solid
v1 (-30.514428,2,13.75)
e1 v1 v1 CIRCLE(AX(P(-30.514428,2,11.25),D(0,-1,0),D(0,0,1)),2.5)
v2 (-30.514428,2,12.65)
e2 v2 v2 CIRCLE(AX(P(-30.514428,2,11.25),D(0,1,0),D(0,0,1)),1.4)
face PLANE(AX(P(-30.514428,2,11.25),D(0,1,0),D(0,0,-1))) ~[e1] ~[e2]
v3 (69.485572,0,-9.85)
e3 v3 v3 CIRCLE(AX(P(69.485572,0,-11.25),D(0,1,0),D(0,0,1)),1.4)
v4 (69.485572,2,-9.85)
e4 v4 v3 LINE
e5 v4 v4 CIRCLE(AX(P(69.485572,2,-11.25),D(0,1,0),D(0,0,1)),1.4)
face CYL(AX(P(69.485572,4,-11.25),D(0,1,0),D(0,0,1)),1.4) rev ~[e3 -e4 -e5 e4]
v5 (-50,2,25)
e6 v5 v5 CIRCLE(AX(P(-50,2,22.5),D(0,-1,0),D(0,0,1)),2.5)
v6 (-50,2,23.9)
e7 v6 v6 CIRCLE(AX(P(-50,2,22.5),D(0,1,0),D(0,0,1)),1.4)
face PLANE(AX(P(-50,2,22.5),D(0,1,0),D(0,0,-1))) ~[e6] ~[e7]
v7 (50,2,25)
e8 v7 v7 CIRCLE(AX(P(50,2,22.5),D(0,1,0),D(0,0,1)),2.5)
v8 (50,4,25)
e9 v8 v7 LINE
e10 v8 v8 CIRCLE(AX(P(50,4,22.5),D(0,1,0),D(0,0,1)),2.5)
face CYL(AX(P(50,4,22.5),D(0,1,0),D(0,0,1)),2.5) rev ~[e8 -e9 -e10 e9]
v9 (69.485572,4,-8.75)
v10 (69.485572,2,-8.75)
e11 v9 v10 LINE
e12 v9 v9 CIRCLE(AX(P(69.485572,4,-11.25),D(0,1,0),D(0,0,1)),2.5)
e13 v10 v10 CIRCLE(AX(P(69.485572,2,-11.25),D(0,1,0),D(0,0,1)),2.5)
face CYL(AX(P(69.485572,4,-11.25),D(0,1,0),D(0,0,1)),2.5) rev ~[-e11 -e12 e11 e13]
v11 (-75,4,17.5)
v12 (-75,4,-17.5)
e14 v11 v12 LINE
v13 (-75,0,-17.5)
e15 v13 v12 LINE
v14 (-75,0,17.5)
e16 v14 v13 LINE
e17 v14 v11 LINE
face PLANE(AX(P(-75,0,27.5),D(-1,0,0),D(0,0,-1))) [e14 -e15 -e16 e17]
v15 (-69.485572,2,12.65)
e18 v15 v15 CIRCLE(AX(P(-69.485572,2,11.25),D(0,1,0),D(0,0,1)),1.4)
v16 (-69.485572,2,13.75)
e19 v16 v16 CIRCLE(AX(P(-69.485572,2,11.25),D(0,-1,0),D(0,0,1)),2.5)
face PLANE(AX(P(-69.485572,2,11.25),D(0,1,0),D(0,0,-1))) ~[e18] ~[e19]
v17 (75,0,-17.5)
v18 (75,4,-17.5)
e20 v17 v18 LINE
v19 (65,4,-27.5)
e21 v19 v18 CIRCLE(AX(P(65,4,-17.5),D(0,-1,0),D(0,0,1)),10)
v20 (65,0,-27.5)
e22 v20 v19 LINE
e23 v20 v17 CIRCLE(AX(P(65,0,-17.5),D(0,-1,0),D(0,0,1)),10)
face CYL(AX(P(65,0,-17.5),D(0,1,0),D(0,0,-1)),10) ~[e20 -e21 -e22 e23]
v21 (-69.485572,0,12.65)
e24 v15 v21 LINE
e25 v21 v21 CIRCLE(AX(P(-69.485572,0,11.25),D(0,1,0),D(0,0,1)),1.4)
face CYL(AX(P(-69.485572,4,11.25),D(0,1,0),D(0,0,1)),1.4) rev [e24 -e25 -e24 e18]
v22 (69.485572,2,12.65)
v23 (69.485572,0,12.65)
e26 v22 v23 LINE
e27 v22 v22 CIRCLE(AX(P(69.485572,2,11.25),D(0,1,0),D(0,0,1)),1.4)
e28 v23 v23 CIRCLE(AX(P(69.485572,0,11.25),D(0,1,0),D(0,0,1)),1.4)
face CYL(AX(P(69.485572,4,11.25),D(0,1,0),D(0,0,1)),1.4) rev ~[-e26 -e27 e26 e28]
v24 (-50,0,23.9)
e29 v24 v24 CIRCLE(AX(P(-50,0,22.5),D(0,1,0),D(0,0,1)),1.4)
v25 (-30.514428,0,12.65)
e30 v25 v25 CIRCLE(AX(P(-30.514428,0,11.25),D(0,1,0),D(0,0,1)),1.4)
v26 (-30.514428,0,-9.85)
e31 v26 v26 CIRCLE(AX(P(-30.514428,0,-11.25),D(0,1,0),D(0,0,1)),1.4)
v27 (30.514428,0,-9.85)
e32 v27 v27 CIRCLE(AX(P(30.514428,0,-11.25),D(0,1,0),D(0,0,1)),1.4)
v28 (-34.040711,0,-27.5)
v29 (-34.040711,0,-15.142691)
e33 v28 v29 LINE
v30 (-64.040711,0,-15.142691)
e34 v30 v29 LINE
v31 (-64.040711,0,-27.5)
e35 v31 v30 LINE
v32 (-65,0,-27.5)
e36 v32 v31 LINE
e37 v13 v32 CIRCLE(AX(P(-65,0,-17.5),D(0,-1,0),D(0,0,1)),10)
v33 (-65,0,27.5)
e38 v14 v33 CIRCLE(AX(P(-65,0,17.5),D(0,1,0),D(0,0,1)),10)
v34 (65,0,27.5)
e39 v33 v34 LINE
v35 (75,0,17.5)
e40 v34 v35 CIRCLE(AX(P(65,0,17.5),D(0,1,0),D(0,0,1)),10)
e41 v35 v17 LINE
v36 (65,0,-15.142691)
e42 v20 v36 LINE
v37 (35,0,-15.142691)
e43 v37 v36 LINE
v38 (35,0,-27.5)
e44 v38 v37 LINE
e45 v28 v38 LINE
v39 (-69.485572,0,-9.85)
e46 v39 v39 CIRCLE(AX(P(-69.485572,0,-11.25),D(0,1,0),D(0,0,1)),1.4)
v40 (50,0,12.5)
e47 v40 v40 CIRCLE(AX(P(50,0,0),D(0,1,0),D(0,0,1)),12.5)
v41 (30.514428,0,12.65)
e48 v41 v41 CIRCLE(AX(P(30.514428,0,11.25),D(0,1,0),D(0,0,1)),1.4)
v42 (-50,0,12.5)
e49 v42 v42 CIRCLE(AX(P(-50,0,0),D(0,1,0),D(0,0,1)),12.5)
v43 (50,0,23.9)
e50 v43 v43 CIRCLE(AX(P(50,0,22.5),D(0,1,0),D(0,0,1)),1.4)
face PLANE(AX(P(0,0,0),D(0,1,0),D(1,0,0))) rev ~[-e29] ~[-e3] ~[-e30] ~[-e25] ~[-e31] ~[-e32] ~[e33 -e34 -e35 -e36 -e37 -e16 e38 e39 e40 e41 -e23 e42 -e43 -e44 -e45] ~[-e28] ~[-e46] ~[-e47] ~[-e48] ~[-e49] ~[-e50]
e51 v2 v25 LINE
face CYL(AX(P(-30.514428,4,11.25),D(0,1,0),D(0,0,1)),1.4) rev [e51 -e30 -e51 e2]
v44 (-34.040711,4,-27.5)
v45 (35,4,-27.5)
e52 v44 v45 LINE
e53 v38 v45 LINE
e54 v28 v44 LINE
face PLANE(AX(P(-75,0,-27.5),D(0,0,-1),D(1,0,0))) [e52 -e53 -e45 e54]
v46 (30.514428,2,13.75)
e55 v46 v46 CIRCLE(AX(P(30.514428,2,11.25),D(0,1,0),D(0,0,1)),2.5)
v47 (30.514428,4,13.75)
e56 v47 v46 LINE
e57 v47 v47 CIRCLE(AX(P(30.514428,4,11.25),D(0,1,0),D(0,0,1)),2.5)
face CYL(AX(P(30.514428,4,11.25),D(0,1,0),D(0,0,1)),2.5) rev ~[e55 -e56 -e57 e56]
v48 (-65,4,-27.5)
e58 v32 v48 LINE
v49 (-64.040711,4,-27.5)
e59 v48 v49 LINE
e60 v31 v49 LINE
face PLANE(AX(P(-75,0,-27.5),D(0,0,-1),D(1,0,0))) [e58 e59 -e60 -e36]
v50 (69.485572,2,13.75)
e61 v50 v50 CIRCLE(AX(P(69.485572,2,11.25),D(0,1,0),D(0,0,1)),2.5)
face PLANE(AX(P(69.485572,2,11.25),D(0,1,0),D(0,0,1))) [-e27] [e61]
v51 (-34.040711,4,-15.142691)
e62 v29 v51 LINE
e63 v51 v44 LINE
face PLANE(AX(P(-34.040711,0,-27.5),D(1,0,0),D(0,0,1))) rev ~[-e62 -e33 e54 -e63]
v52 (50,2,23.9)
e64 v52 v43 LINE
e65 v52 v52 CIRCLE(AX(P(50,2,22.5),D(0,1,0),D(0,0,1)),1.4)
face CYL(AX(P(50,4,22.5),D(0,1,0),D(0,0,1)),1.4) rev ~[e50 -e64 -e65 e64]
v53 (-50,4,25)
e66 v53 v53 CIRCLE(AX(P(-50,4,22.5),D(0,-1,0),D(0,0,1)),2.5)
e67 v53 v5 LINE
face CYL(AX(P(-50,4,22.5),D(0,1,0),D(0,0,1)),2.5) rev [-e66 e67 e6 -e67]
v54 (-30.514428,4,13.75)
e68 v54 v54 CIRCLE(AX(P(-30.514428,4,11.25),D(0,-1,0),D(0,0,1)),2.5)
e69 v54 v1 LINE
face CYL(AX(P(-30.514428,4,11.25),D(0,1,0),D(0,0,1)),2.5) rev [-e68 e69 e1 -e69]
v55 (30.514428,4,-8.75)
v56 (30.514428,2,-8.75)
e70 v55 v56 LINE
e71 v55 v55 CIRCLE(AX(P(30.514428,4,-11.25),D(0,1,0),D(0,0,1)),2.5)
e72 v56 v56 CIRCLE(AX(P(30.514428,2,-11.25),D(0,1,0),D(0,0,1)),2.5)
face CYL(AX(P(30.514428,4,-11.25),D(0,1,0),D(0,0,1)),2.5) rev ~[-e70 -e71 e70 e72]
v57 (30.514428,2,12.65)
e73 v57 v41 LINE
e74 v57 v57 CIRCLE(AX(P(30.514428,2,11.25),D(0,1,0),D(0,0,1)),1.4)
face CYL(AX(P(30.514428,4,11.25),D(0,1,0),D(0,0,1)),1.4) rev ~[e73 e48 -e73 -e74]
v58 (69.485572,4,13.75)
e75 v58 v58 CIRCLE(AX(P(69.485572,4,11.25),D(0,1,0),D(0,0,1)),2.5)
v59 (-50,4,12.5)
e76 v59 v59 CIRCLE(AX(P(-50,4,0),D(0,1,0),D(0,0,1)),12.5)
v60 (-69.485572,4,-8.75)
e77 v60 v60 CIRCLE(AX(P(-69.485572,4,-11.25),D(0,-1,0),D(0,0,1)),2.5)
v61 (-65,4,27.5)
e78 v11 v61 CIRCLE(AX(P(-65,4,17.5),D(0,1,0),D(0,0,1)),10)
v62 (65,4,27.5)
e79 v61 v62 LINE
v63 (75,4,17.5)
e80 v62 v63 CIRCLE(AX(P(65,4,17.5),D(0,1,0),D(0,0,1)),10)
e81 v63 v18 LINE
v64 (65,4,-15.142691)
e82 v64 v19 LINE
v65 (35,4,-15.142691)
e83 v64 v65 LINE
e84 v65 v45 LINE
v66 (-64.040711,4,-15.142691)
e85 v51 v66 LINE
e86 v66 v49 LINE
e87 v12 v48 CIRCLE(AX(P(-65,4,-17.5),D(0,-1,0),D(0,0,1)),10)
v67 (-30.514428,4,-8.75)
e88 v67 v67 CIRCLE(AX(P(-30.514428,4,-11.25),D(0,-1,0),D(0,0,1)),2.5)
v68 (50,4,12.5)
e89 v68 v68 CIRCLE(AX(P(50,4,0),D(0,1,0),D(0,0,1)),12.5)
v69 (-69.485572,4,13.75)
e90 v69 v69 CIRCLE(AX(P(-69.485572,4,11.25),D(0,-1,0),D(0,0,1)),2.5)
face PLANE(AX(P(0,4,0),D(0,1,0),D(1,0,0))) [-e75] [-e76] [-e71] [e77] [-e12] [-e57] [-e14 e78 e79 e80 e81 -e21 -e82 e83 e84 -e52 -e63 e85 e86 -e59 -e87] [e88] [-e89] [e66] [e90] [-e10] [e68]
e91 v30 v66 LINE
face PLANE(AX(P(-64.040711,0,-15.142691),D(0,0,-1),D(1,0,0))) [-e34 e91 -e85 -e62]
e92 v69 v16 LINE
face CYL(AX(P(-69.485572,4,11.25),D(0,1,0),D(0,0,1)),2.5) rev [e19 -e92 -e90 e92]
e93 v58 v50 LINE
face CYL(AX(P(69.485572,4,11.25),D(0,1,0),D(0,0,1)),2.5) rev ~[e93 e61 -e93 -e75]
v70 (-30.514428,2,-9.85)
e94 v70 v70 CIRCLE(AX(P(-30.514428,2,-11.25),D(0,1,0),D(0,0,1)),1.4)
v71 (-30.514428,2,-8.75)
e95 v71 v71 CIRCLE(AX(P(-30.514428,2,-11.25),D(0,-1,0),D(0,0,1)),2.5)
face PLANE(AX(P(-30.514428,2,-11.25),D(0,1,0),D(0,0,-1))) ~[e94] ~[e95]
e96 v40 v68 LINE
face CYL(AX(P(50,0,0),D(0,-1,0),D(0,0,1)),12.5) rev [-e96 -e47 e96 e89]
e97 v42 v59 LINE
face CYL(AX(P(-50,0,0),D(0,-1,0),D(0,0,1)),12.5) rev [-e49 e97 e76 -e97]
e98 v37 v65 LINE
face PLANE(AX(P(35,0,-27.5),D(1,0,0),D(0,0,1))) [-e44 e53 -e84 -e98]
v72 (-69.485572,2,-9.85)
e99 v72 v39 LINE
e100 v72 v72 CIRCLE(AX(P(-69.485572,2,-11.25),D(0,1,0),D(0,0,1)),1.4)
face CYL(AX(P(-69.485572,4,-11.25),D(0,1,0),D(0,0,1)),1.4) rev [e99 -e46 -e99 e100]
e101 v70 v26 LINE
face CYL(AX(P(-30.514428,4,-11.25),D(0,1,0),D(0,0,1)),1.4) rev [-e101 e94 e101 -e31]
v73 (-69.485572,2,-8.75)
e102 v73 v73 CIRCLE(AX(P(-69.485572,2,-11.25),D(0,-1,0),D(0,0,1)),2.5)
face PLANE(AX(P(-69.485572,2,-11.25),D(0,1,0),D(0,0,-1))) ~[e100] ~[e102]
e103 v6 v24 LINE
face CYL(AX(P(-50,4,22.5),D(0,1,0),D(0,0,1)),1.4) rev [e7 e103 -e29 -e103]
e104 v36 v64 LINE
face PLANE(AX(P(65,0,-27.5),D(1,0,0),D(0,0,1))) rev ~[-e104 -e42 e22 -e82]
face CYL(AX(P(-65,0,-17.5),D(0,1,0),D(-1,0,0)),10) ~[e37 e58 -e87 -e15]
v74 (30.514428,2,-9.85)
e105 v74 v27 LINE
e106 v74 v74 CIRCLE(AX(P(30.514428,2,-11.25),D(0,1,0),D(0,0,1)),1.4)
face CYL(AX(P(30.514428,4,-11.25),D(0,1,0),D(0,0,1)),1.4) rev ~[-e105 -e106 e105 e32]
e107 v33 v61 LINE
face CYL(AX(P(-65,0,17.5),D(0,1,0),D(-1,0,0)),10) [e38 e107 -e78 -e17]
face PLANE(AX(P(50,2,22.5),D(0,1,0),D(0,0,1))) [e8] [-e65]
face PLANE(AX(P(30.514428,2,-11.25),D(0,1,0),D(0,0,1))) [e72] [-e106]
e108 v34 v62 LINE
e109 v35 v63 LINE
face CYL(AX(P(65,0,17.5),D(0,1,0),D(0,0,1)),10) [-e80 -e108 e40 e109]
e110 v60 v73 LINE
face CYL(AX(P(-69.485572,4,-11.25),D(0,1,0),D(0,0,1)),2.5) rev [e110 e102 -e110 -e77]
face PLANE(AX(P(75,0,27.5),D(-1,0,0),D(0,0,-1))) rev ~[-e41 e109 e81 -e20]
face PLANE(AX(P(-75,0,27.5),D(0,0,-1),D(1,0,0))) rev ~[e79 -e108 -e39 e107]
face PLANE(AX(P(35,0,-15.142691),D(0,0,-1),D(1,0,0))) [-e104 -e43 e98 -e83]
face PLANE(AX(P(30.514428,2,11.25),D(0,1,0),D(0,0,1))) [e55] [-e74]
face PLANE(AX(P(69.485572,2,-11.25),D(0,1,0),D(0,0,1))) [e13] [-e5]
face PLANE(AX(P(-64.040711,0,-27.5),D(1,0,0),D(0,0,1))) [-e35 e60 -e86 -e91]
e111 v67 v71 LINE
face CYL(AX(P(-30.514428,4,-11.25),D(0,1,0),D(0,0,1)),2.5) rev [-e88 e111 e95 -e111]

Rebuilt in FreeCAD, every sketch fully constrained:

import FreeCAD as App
import Part
import Sketcher

V = App.Vector


def edges_at(feature, points):
    """Names of the edges that pass closest to the given points."""
    edges = feature.Shape.Edges
    near = lambda p: min(range(len(edges)), key=lambda i: edges[i].distToShape(Part.Vertex(*p))[0])
    return sorted({f"Edge{near(p) + 1}" for p in points})

doc = App.newDocument("Part")
body = doc.addObject("PartDesign::Body", "Body")

sketch1 = body.newObject("Sketcher::SketchObject", "Sketch")
sketch1.AttachmentSupport = (doc.getObject("XZ_Plane"), [""])
sketch1.MapMode = "FlatFace"
sketch1.addGeometry([
    Part.LineSegment(V(-75, -28, 0), V(-75, 28, 0)),
    Part.LineSegment(V(-75, 28, 0), V(75, 28, 0)),
    Part.LineSegment(V(75, 28, 0), V(75, -28, 0)),
    Part.LineSegment(V(75, -28, 0), V(-75, -28, 0)),
    Part.Circle(V(-50, 0, 0), V(0, 0, 1), 12),
    Part.Circle(V(50, 0, 0), V(0, 0, 1), 12),
], False)
sketch1.addConstraint([
    Sketcher.Constraint("Coincident", 0, 2, 1, 1),
    Sketcher.Constraint("Coincident", 1, 2, 2, 1),
    Sketcher.Constraint("Coincident", 2, 2, 3, 1),
    Sketcher.Constraint("Coincident", 3, 2, 0, 1),
    Sketcher.Constraint("Vertical", 0),
    Sketcher.Constraint("Horizontal", 1),
    Sketcher.Constraint("Vertical", 2),
    Sketcher.Constraint("Horizontal", 3),
    Sketcher.Constraint("Equal", 4, 5),
    Sketcher.Constraint("Symmetric", 4, 3, 5, 3, -1, 1),
    Sketcher.Constraint("Symmetric", 0, 2, 2, 2, -1, 1),
    Sketcher.Constraint("PointOnObject", 4, 3, -1),
    Sketcher.Constraint("Diameter", 4, 25.0),
    Sketcher.Constraint("DistanceX", 1, 1, 1, 2, 150.0),
    Sketcher.Constraint("DistanceY", 0, 1, 0, 2, 55.0),
    Sketcher.Constraint("DistanceX", 4, 3, -1, 1, 50.0),
])
pad1 = body.newObject("PartDesign::Pad", "Pad")
pad1.Profile = sketch1
pad1.Length = 4
pad1.Reversed = True

sketch2 = body.newObject("Sketcher::SketchObject", "Sketch001")
sketch2.AttachmentSupport = (doc.getObject("XZ_Plane"), [""])
sketch2.MapMode = "FlatFace"
sketch2.AttachmentOffset = App.Placement(V(0, 0, -4), App.Rotation())
sketch2.addGeometry([
    Part.Circle(V(30.5, -11.2, 0), V(0, 0, 1), 1.4),
    Part.Circle(V(69.5, -11.2, 0), V(0, 0, 1), 1.4),
    Part.Circle(V(69.5, 11.2, 0), V(0, 0, 1), 1.4),
    Part.Circle(V(30.5, 11.2, 0), V(0, 0, 1), 1.4),
    Part.Circle(V(50, 22.5, 0), V(0, 0, 1), 1.4),
], False)
sketch2.addConstraint([
    Sketcher.Constraint("Equal", 0, 1),
    Sketcher.Constraint("Equal", 1, 2),
    Sketcher.Constraint("Equal", 2, 3),
    Sketcher.Constraint("Equal", 3, 4),
    Sketcher.Constraint("Symmetric", 1, 3, 2, 3, -1),
    Sketcher.Constraint("Symmetric", 0, 3, 3, 3, -1),
    Sketcher.Constraint("Horizontal", 0, 3, 1, 3),
    Sketcher.Constraint("Diameter", 0, 2.8),
    Sketcher.Constraint("DistanceX", -1, 1, 4, 3, 50.0),
    Sketcher.Constraint("DistanceY", -1, 1, 4, 3, 22.5),
    Sketcher.Constraint("DistanceY", 1, 3, 2, 3, 22.5),
    Sketcher.Constraint("DistanceX", -1, 1, 0, 3, 30.514428),
    Sketcher.Constraint("DistanceX", -1, 1, 1, 3, 69.485572),
])
pocket1 = body.newObject("PartDesign::Pocket", "Pocket")
pocket1.Profile = sketch2
pocket1.Type = "ThroughAll"
pocket1.Reversed = True

sketch3 = body.newObject("Sketcher::SketchObject", "Sketch002")
sketch3.AttachmentSupport = (doc.getObject("XZ_Plane"), [""])
sketch3.MapMode = "FlatFace"
sketch3.AttachmentOffset = App.Placement(V(0, 0, -4), App.Rotation())
sketch3.addGeometry([
    Part.Circle(V(30.5, -11.2, 0), V(0, 0, 1), 2.5),
    Part.Circle(V(30.5, 11.2, 0), V(0, 0, 1), 2.5),
    Part.Circle(V(50, 22.5, 0), V(0, 0, 1), 2.5),
    Part.Circle(V(69.5, 11.2, 0), V(0, 0, 1), 2.5),
    Part.Circle(V(69.5, -11.2, 0), V(0, 0, 1), 2.5),
], False)
sketch3.addConstraint([
    Sketcher.Constraint("Equal", 0, 1),
    Sketcher.Constraint("Equal", 1, 2),
    Sketcher.Constraint("Equal", 2, 3),
    Sketcher.Constraint("Equal", 3, 4),
    Sketcher.Constraint("Symmetric", 0, 3, 1, 3, -1),
    Sketcher.Constraint("Symmetric", 3, 3, 4, 3, -1),
    Sketcher.Constraint("Horizontal", 1, 3, 3, 3),
    Sketcher.Constraint("Diameter", 0, 5.0),
    Sketcher.Constraint("DistanceX", -1, 1, 2, 3, 50.0),
    Sketcher.Constraint("DistanceY", -1, 1, 2, 3, 22.5),
    Sketcher.Constraint("DistanceY", 0, 3, 1, 3, 22.5),
    Sketcher.Constraint("DistanceX", -1, 1, 0, 3, 30.514428),
    Sketcher.Constraint("DistanceX", -1, 1, 3, 3, 69.485572),
])
pocket2 = body.newObject("PartDesign::Pocket", "Pocket001")
pocket2.Profile = sketch3
pocket2.Length = 2
pocket2.Reversed = True
doc.recompute()

mirrored = body.newObject("PartDesign::Mirrored", "Mirrored")
mirrored.Originals = [pocket1, pocket2]
mirrored.MirrorPlane = (doc.getObject("YZ_Plane"), [""])
body.Tip = mirrored
doc.recompute()

fillet = body.newObject("PartDesign::Fillet", "Fillet")
fillet.Base = (mirrored, edges_at(mirrored, [
    (-75, 2, -27.5),
    (75, 2, -27.5),
    (75, 2, 27.5),
    (-75, 2, 27.5),
]))
fillet.Radius = 10

sketch4 = body.newObject("Sketcher::SketchObject", "Sketch003")
sketch4.AttachmentSupport = (doc.getObject("XZ_Plane"), [""])
sketch4.MapMode = "FlatFace"
sketch4.addGeometry([
    Part.LineSegment(V(-64, -15, 0), V(-64, -28, 0)),
    Part.LineSegment(V(-64, -28, 0), V(-34, -28, 0)),
    Part.LineSegment(V(-34, -28, 0), V(-34, -15, 0)),
    Part.LineSegment(V(-34, -15, 0), V(-64, -15, 0)),
    Part.LineSegment(V(35, -15, 0), V(35, -28, 0)),
    Part.LineSegment(V(35, -28, 0), V(65, -28, 0)),
    Part.LineSegment(V(65, -28, 0), V(65, -15, 0)),
    Part.LineSegment(V(65, -15, 0), V(35, -15, 0)),
], False)
sketch4.addConstraint([
    Sketcher.Constraint("Coincident", 0, 2, 1, 1),
    Sketcher.Constraint("Coincident", 1, 2, 2, 1),
    Sketcher.Constraint("Coincident", 2, 2, 3, 1),
    Sketcher.Constraint("Coincident", 3, 2, 0, 1),
    Sketcher.Constraint("Coincident", 4, 2, 5, 1),
    Sketcher.Constraint("Coincident", 5, 2, 6, 1),
    Sketcher.Constraint("Coincident", 6, 2, 7, 1),
    Sketcher.Constraint("Coincident", 7, 2, 4, 1),
    Sketcher.Constraint("Vertical", 0),
    Sketcher.Constraint("Horizontal", 1),
    Sketcher.Constraint("Vertical", 2),
    Sketcher.Constraint("Horizontal", 3),
    Sketcher.Constraint("Vertical", 4),
    Sketcher.Constraint("Horizontal", 5),
    Sketcher.Constraint("Vertical", 6),
    Sketcher.Constraint("Horizontal", 7),
    Sketcher.Constraint("Horizontal", 1, 2, 4, 2),
    Sketcher.Constraint("Horizontal", 3, 2, 6, 2),
    Sketcher.Constraint("Equal", 3, 5),
    Sketcher.Constraint("DistanceX", 1, 1, 1, 2, 30.0),
    Sketcher.Constraint("DistanceX", -1, 1, 4, 2, 35.0),
    Sketcher.Constraint("DistanceY", 0, 2, -1, 1, 27.5),
    Sketcher.Constraint("DistanceY", 0, 2, 0, 1, 12.357309),
    Sketcher.Constraint("DistanceX", 0, 2, -1, 1, 64.040711),
])
pocket3 = body.newObject("PartDesign::Pocket", "Pocket002")
pocket3.Profile = sketch4
pocket3.Type = "ThroughAll"

doc.recompute()
